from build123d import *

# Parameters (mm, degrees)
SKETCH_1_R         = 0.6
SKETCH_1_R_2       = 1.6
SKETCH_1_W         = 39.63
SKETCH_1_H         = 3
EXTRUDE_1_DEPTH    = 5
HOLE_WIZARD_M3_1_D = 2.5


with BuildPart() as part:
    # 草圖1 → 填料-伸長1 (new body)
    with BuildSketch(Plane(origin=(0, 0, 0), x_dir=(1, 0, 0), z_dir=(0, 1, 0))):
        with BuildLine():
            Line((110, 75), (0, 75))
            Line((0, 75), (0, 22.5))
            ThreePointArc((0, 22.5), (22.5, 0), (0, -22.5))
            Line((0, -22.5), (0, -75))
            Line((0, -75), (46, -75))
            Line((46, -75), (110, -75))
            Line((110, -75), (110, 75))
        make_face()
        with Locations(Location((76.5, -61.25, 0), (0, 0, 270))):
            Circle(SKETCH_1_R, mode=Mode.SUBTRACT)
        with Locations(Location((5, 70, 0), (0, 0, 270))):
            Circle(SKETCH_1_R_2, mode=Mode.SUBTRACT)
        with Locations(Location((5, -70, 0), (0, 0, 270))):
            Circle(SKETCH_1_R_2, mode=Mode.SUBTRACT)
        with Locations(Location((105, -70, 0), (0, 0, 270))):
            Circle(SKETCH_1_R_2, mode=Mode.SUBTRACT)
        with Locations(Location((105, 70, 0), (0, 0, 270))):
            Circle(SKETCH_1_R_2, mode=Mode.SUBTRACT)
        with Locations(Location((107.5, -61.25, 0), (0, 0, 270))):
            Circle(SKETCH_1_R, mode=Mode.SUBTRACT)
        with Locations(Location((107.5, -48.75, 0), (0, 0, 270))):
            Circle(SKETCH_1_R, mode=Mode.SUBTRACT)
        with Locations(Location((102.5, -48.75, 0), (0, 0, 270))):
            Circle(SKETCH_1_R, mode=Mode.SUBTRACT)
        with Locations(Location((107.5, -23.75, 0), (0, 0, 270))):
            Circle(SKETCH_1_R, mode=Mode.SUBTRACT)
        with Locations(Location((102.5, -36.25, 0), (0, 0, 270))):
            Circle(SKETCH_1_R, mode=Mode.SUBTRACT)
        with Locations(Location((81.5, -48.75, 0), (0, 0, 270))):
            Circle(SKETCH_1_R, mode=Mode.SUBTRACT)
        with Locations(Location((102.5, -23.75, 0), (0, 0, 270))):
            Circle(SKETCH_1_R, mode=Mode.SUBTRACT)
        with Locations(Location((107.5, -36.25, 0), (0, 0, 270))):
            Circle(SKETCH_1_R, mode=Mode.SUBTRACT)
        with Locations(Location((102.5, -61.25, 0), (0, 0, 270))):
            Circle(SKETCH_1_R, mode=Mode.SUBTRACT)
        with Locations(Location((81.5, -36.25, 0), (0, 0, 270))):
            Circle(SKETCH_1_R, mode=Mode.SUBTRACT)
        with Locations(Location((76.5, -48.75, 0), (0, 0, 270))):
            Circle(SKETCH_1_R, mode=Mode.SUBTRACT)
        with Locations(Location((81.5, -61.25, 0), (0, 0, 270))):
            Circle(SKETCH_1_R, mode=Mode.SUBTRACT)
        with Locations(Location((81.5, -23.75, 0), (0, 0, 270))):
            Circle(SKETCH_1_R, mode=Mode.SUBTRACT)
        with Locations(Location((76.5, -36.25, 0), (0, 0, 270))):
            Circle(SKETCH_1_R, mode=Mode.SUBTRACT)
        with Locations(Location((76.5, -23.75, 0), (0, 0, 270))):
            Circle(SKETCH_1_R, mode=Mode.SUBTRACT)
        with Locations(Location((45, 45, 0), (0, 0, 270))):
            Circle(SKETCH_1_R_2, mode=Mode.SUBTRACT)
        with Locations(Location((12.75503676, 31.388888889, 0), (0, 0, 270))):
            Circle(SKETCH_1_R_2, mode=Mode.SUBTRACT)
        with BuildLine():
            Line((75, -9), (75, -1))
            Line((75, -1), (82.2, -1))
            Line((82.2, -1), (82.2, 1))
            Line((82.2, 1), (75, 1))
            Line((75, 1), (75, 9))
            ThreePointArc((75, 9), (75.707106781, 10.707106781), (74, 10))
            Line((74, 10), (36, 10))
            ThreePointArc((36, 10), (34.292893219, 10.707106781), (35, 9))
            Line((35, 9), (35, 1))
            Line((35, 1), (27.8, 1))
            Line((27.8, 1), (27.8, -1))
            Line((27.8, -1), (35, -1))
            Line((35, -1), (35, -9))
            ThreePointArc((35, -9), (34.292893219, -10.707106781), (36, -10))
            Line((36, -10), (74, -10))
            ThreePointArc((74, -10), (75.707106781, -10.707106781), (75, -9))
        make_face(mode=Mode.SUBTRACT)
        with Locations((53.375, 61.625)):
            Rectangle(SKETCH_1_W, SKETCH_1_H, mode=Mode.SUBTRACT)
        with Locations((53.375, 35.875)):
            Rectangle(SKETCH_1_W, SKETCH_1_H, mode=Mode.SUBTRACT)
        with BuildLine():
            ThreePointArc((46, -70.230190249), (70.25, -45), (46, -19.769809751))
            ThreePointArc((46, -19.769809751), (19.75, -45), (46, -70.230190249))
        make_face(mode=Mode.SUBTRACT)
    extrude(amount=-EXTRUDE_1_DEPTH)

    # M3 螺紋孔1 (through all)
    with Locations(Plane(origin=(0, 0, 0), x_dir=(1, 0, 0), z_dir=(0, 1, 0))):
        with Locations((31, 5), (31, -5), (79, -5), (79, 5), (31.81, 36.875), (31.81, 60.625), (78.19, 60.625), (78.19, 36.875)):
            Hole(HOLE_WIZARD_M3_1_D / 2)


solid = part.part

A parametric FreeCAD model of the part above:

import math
import FreeCAD as App
import Part
import Sketcher
from FreeCAD import Vector

doc = App.newDocument("Part")
params = doc.addObject("Spreadsheet::Sheet", "Params")
for row, (alias, value) in enumerate([
    ("sketch1_radius", "1 mm"),
    ("sketch1_diameter", "3.2 mm"),
    ("sketch1_diameter2", "1.2 mm"),
    ("sketch1_radius2", "22.5 mm"),
    ("sketch1_width", "110 mm"),
    ("pad1_length", "5 mm"),
    ("sketch2_diameter", "2.5 mm"),
    ("hole_diameter", "2.5 mm"),
], start=1):
    params.set(f"A{row}", alias)
    params.set(f"B{row}", "=" + value)
    params.setAlias(f"B{row}", alias)

body = doc.addObject("PartDesign::Body", "Body")

# Sketch on XZ plane
sketch1 = body.newObject("Sketcher::SketchObject", "Sketch")
sketch1.AttachmentSupport = (doc.getObject("XZ_Plane"), [""])
sketch1.MapMode = "FlatFace"
sketch1.addGeometry(Part.LineSegment(Vector(110, -75, 0), Vector(0, -75, 0)), False)
sketch1.addGeometry(Part.LineSegment(Vector(0, -75, 0), Vector(0, -22.5, 0)), False)
sketch1.addGeometry(Part.ArcOfCircle(Part.Circle(Vector(0, 0, 0), Vector(0, 0, 1), 22.5), math.radians(-90), math.radians(90)), False)
sketch1.addGeometry(Part.LineSegment(Vector(0, 22.5, 0), Vector(0, 75, 0)), False)
sketch1.addGeometry(Part.LineSegment(Vector(0, 75, 0), Vector(110, 75, 0)), False)
sketch1.addGeometry(Part.LineSegment(Vector(110, 75, 0), Vector(110, -75, 0)), False)
sketch1.addGeometry(Part.Circle(Vector(5, 70, 0), Vector(0, 0, 1), 1.6), False)
sketch1.addGeometry(Part.ArcOfCircle(Part.Circle(Vector(45, 45, 0), Vector(0, 0, 1), 25.2), math.radians(-88), math.radians(88)), False)
sketch1.addGeometry(Part.ArcOfCircle(Part.Circle(Vector(45, 45, 0), Vector(0, 0, 1), 25.2), math.radians(88), math.radians(272)), False)
sketch1.addGeometry(Part.Circle(Vector(76.5, 61.2, 0), Vector(0, 0, 1), 0.6), False)
sketch1.addGeometry(Part.Circle(Vector(81.5, 61.2, 0), Vector(0, 0, 1), 0.6), False)
sketch1.addGeometry(Part.Circle(Vector(76.5, 48.8, 0), Vector(0, 0, 1), 0.6), False)
sketch1.addGeometry(Part.Circle(Vector(81.5, 48.8, 0), Vector(0, 0, 1), 0.6), False)
sketch1.addGeometry(Part.Circle(Vector(76.5, 36.2, 0), Vector(0, 0, 1), 0.6), False)
sketch1.addGeometry(Part.Circle(Vector(81.5, 36.2, 0), Vector(0, 0, 1), 0.6), False)
sketch1.addGeometry(Part.Circle(Vector(105, 70, 0), Vector(0, 0, 1), 1.6), False)
sketch1.addGeometry(Part.Circle(Vector(102.5, 61.2, 0), Vector(0, 0, 1), 0.6), False)
sketch1.addGeometry(Part.Circle(Vector(107.5, 61.2, 0), Vector(0, 0, 1), 0.6), False)
sketch1.addGeometry(Part.Circle(Vector(102.5, 48.8, 0), Vector(0, 0, 1), 0.6), False)
sketch1.addGeometry(Part.Circle(Vector(107.5, 48.8, 0), Vector(0, 0, 1), 0.6), False)
sketch1.addGeometry(Part.Circle(Vector(102.5, 36.2, 0), Vector(0, 0, 1), 0.6), False)
sketch1.addGeometry(Part.Circle(Vector(107.5, 36.2, 0), Vector(0, 0, 1), 0.6), False)
sketch1.addGeometry(Part.Circle(Vector(76.5, 23.8, 0), Vector(0, 0, 1), 0.6), False)
sketch1.addGeometry(Part.Circle(Vector(81.5, 23.8, 0), Vector(0, 0, 1), 0.6), False)
sketch1.addGeometry(Part.Circle(Vector(102.5, 23.8, 0), Vector(0, 0, 1), 0.6), False)
sketch1.addGeometry(Part.Circle(Vector(107.5, 23.8, 0), Vector(0, 0, 1), 0.6), False)
sketch1.addGeometry(Part.Circle(Vector(12.8, -31.4, 0), Vector(0, 0, 1), 1.6), False)
sketch1.addGeometry(Part.LineSegment(Vector(75, 1, 0), Vector(75, 9, 0)), False)
sketch1.addGeometry(Part.ArcOfCircle(Part.Circle(Vector(75, 10, 0), Vector(0, 0, 1), 1), math.radians(-90), math.radians(180)), False)
sketch1.addGeometry(Part.LineSegment(Vector(74, 10, 0), Vector(36, 10, 0)), False)
sketch1.addGeometry(Part.ArcOfCircle(Part.Circle(Vector(35, 10, 0), Vector(0, 0, 1), 1), math.radians(0), math.radians(270)), False)
sketch1.addGeometry(Part.LineSegment(Vector(35, 9, 0), Vector(35, 1, 0)), False)
sketch1.addGeometry(Part.LineSegment(Vector(35, 1, 0), Vector(27.8, 1, 0)), False)
sketch1.addGeometry(Part.LineSegment(Vector(27.8, 1, 0), Vector(27.8, -1, 0)), False)
sketch1.addGeometry(Part.LineSegment(Vector(27.8, -1, 0), Vector(35, -1, 0)), False)
sketch1.addGeometry(Part.LineSegment(Vector(35, -1, 0), Vector(35, -9, 0)), False)
sketch1.addGeometry(Part.ArcOfCircle(Part.Circle(Vector(35, -10, 0), Vector(0, 0, 1), 1), math.radians(90), math.radians(360)), False)
sketch1.addGeometry(Part.LineSegment(Vector(36, -10, 0), Vector(74, -10, 0)), False)
sketch1.addGeometry(Part.ArcOfCircle(Part.Circle(Vector(75, -10, 0), Vector(0, 0, 1), 1), math.radians(180), math.radians(450)), False)
sketch1.addGeometry(Part.LineSegment(Vector(75, -9, 0), Vector(75, -1, 0)), False)
sketch1.addGeometry(Part.LineSegment(Vector(75, -1, 0), Vector(82.2, -1, 0)), False)
sketch1.addGeometry(Part.LineSegment(Vector(82.2, -1, 0), Vector(82.2, 1, 0)), False)
sketch1.addGeometry(Part.LineSegment(Vector(82.2, 1, 0), Vector(75, 1, 0)), False)
sketch1.addGeometry(Part.Circle(Vector(5, -70, 0), Vector(0, 0, 1), 1.6), False)
sketch1.addGeometry(Part.LineSegment(Vector(73.2, -34.4, 0), Vector(33.6, -34.4, 0)), False)
sketch1.addGeometry(Part.LineSegment(Vector(33.6, -34.4, 0), Vector(33.6, -37.4, 0)), False)
sketch1.addGeometry(Part.LineSegment(Vector(33.6, -37.4, 0), Vector(73.2, -37.4, 0)), False)
sketch1.addGeometry(Part.LineSegment(Vector(73.2, -37.4, 0), Vector(73.2, -34.4, 0)), False)
sketch1.addGeometry(Part.Circle(Vector(45, -45, 0), Vector(0, 0, 1), 1.6), False)
sketch1.addGeometry(Part.LineSegment(Vector(73.2, -60.1, 0), Vector(33.6, -60.1, 0)), False)
sketch1.addGeometry(Part.LineSegment(Vector(33.6, -60.1, 0), Vector(33.6, -63.1, 0)), False)
sketch1.addGeometry(Part.LineSegment(Vector(33.6, -63.1, 0), Vector(73.2, -63.1, 0)), False)
sketch1.addGeometry(Part.LineSegment(Vector(73.2, -63.1, 0), Vector(73.2, -60.1, 0)), False)
sketch1.addGeometry(Part.Circle(Vector(105, -70, 0), Vector(0, 0, 1), 1.6), False)
sketch1.addConstraint(Sketcher.Constraint("Coincident", 0, 2, 1, 1))
sketch1.addConstraint(Sketcher.Constraint("Coincident", 1, 2, 2, 1))
sketch1.addConstraint(Sketcher.Constraint("Coincident", 2, 2, 3, 1))
sketch1.addConstraint(Sketcher.Constraint("Coincident", 3, 2, 4, 1))
sketch1.addConstraint(Sketcher.Constraint("Coincident", 4, 2, 5, 1))
sketch1.addConstraint(Sketcher.Constraint("Coincident", 5, 2, 0, 1))
sketch1.addConstraint(Sketcher.Constraint("Tangent", 7, 1, 8, 2))
sketch1.addConstraint(Sketcher.Constraint("Coincident", 8, 1, 7, 2))
sketch1.addConstraint(Sketcher.Constraint("Coincident", 27, 2, 28, 1))
sketch1.addConstraint(Sketcher.Constraint("Coincident", 28, 2, 29, 1))
sketch1.addConstraint(Sketcher.Constraint("Coincident", 29, 2, 30, 1))
sketch1.addConstraint(Sketcher.Constraint("Coincident", 30, 2, 31, 1))
sketch1.addConstraint(Sketcher.Constraint("Coincident", 31, 2, 32, 1))
sketch1.addConstraint(Sketcher.Constraint("Coincident", 32, 2, 33, 1))
sketch1.addConstraint(Sketcher.Constraint("Coincident", 33, 2, 34, 1))
sketch1.addConstraint(Sketcher.Constraint("Coincident", 34, 2, 35, 1))
sketch1.addConstraint(Sketcher.Constraint("Coincident", 35, 2, 36, 1))
sketch1.addConstraint(Sketcher.Constraint("Coincident", 36, 2, 37, 1))
sketch1.addConstraint(Sketcher.Constraint("Coincident", 37, 2, 38, 1))
sketch1.addConstraint(Sketcher.Constraint("Coincident", 38, 2, 39, 1))
sketch1.addConstraint(Sketcher.Constraint("Coincident", 39, 2, 40, 1))
sketch1.addConstraint(Sketcher.Constraint("Coincident", 40, 2, 41, 1))
sketch1.addConstraint(Sketcher.Constraint("Coincident", 41, 2, 42, 1))
sketch1.addConstraint(Sketcher.Constraint("Coincident", 42, 2, 27, 1))
sketch1.addConstraint(Sketcher.Constraint("Coincident", 44, 2, 45, 1))
sketch1.addConstraint(Sketcher.Constraint("Coincident", 45, 2, 46, 1))
sketch1.addConstraint(Sketcher.Constraint("Coincident", 46, 2, 47, 1))
sketch1.addConstraint(Sketcher.Constraint("Coincident", 47, 2, 44, 1))
sketch1.addConstraint(Sketcher.Constraint("Coincident", 49, 2, 50, 1))
sketch1.addConstraint(Sketcher.Constraint("Coincident", 50, 2, 51, 1))
sketch1.addConstraint(Sketcher.Constraint("Coincident", 51, 2, 52, 1))
sketch1.addConstraint(Sketcher.Constraint("Coincident", 52, 2, 49, 1))
sketch1.addConstraint(Sketcher.Constraint("Horizontal", 0))
sketch1.addConstraint(Sketcher.Constraint("Vertical", 1))
sketch1.addConstraint(Sketcher.Constraint("Vertical", 3))
sketch1.addConstraint(Sketcher.Constraint("Horizontal", 4))
sketch1.addConstraint(Sketcher.Constraint("Vertical", 5))
sketch1.addConstraint(Sketcher.Constraint("Vertical", 27))
sketch1.addConstraint(Sketcher.Constraint("Horizontal", 29))
sketch1.addConstraint(Sketcher.Constraint("Vertical", 31))
sketch1.addConstraint(Sketcher.Constraint("Horizontal", 32))
sketch1.addConstraint(Sketcher.Constraint("Vertical", 33))
sketch1.addConstraint(Sketcher.Constraint("Horizontal", 34))
sketch1.addConstraint(Sketcher.Constraint("Vertical", 35))
sketch1.addConstraint(Sketcher.Constraint("Horizontal", 37))
sketch1.addConstraint(Sketcher.Constraint("Vertical", 39))
sketch1.addConstraint(Sketcher.Constraint("Horizontal", 40))
sketch1.addConstraint(Sketcher.Constraint("Vertical", 41))
sketch1.addConstraint(Sketcher.Constraint("Horizontal", 42))
sketch1.addConstraint(Sketcher.Constraint("Horizontal", 44))
sketch1.addConstraint(Sketcher.Constraint("Vertical", 45))
sketch1.addConstraint(Sketcher.Constraint("Horizontal", 46))
sketch1.addConstraint(Sketcher.Constraint("Vertical", 47))
sketch1.addConstraint(Sketcher.Constraint("Horizontal", 49))
sketch1.addConstraint(Sketcher.Constraint("Vertical", 50))
sketch1.addConstraint(Sketcher.Constraint("Horizontal", 51))
sketch1.addConstraint(Sketcher.Constraint("Vertical", 52))
sketch1.addConstraint(Sketcher.Constraint("Coincident", 2, 3, -1, 1))
sketch1.addConstraint(Sketcher.Constraint("Equal", 9, 10))
sketch1.addConstraint(Sketcher.Constraint("Equal", 10, 11))
sketch1.addConstraint(Sketcher.Constraint("Equal", 11, 12))
sketch1.addConstraint(Sketcher.Constraint("Equal", 12, 13))
sketch1.addConstraint(Sketcher.Constraint("Equal", 13, 14))
sketch1.addConstraint(Sketcher.Constraint("Equal", 6, 15))
sketch1.addConstraint(Sketcher.Constraint("Equal", 14, 16))
sketch1.addConstraint(Sketcher.Constraint("Equal", 16, 17))
sketch1.addConstraint(Sketcher.Constraint("Equal", 17, 18))
sketch1.addConstraint(Sketcher.Constraint("Equal", 18, 19))
sketch1.addConstraint(Sketcher.Constraint("Equal", 19, 20))
sketch1.addConstraint(Sketcher.Constraint("Equal", 20, 21))
sketch1.addConstraint(Sketcher.Constraint("Equal", 21, 22))
sketch1.addConstraint(Sketcher.Constraint("Equal", 22, 23))
sketch1.addConstraint(Sketcher.Constraint("Equal", 23, 24))
sketch1.addConstraint(Sketcher.Constraint("Equal", 24, 25))
sketch1.addConstraint(Sketcher.Constraint("Equal", 15, 26))
sketch1.addConstraint(Sketcher.Constraint("Equal", 28, 30))
sketch1.addConstraint(Sketcher.Constraint("Equal", 30, 36))
sketch1.addConstraint(Sketcher.Constraint("Equal", 36, 38))
sketch1.addConstraint(Sketcher.Constraint("Equal", 26, 43))
sketch1.addConstraint(Sketcher.Constraint("Equal", 43, 48))
sketch1.addConstraint(Sketcher.Constraint("Equal", 48, 53))
sketch1.addConstraint(Sketcher.Constraint("Symmetric", 0, 2, 3, 2, -1, 1))
sketch1.addConstraint(Sketcher.Constraint("Symmetric", 30, 3, 36, 3, -1))
sketch1.addConstraint(Sketcher.Constraint("Symmetric", 28, 3, 38, 3, -1))
sketch1.addConstraint(Sketcher.Constraint("Symmetric", 6, 3, 43, 3, -1))
sketch1.addConstraint(Sketcher.Constraint("Symmetric", 7, 3, 48, 3, -1))
sketch1.addConstraint(Sketcher.Constraint("Symmetric", 15, 3, 53, 3, -1))
sketch1.addConstraint(Sketcher.Constraint("Symmetric", 31, 2, 34, 2, -1))
sketch1.addConstraint(Sketcher.Constraint("Symmetric", 39, 2, 42, 2, -1))
sketch1.addConstraint(Sketcher.Constraint("PointOnObject", 0, 2, -2))
sketch1.addConstraint(Sketcher.Constraint("Horizontal", 9, 3, 10, 3))
sketch1.addConstraint(Sketcher.Constraint("Horizontal", 11, 3, 12, 3))
sketch1.addConstraint(Sketcher.Constraint("Horizontal", 13, 3, 14, 3))
sketch1.addConstraint(Sketcher.Constraint("Horizontal", 6, 3, 15, 3))
sketch1.addConstraint(Sketcher.Constraint("Horizontal", 10, 3, 16, 3))
sketch1.addConstraint(Sketcher.Constraint("Horizontal", 16, 3, 17, 3))
sketch1.addConstraint(Sketcher.Constraint("Horizontal", 12, 3, 18, 3))
sketch1.addConstraint(Sketcher.Constraint("Horizontal", 18, 3, 19, 3))
sketch1.addConstraint(Sketcher.Constraint("Horizontal", 14, 3, 20, 3))
sketch1.addConstraint(Sketcher.Constraint("Horizontal", 20, 3, 21, 3))
sketch1.addConstraint(Sketcher.Constraint("Horizontal", 22, 3, 23, 3))
sketch1.addConstraint(Sketcher.Constraint("Horizontal", 23, 3, 24, 3))
sketch1.addConstraint(Sketcher.Constraint("Horizontal", 24, 3, 25, 3))
sketch1.addConstraint(Sketcher.Constraint("Horizontal", 28, 3, 30, 3))
sketch1.addConstraint(Sketcher.Constraint("Horizontal", 30, 3, 28, 2))
sketch1.addConstraint(Sketcher.Constraint("Horizontal", 38, 3, 36, 2))
sketch1.addConstraint(Sketcher.Constraint("Horizontal", 34, 2, 39, 2))
sketch1.addConstraint(Sketcher.Constraint("Vertical", 9, 3, 11, 3))
sketch1.addConstraint(Sketcher.Constraint("Vertical", 10, 3, 12, 3))
sketch1.addConstraint(Sketcher.Constraint("Vertical", 11, 3, 13, 3))
sketch1.addConstraint(Sketcher.Constraint("Vertical", 12, 3, 14, 3))
sketch1.addConstraint(Sketcher.Constraint("Vertical", 16, 3, 18, 3))
sketch1.addConstraint(Sketcher.Constraint("Vertical", 17, 3, 19, 3))
sketch1.addConstraint(Sketcher.Constraint("Vertical", 18, 3, 20, 3))
sketch1.addConstraint(Sketcher.Constraint("Vertical", 19, 3, 21, 3))
sketch1.addConstraint(Sketcher.Constraint("Vertical", 13, 3, 22, 3))
sketch1.addConstraint(Sketcher.Constraint("Vertical", 14, 3, 23, 3))
sketch1.addConstraint(Sketcher.Constraint("Vertical", 20, 3, 24, 3))
sketch1.addConstraint(Sketcher.Constraint("Vertical", 21, 3, 25, 3))
sketch1.addConstraint(Sketcher.Constraint("Vertical", 7, 1, 8, 1))
sketch1.addConstraint(Sketcher.Constraint("Vertical", 38, 3, 27, 2))
sketch1.addConstraint(Sketcher.Constraint("Vertical", 36, 3, 30, 2))
sketch1.addConstraint(Sketcher.Constraint("Vertical", 45, 2, 49, 2))
sketch1.addConstraint(Sketcher.Constraint("Vertical", 47, 2, 51, 2))
sketch1.addConstraint(Sketcher.Constraint("Equal", 34, 40))
sketch1.addConstraint(Sketcher.Constraint("Equal", 47, 50))
sketch1.addConstraint(Sketcher.Constraint("Radius", 28, 1.0))
sketch1.addConstraint(Sketcher.Constraint("Diameter", 6, 3.2))
sketch1.addConstraint(Sketcher.Constraint("Diameter", 9, 1.2))
sketch1.addConstraint(Sketcher.Constraint("Radius", 2, 22.5))
sketch1.addConstraint(Sketcher.Constraint("DistanceX", 0, 2, 0, 1, 110.0))
sketch1.addConstraint(Sketcher.Constraint("DistanceX", 29, 2, 29, 1, 38.0))
sketch1.addConstraint(Sketcher.Constraint("DistanceY", 5, 2, 5, 1, 150.0))
sketch1.addConstraint(Sketcher.Constraint("DistanceY", 27, 1, 27, 2, 8.0))
sketch1.addConstraint(Sketcher.Constraint("DistanceY", 33, 2, 33, 1, 2.0))
sketch1.addConstraint(Sketcher.Constraint("DistanceY", 45, 2, 45, 1, 3.0))
sketch1.addConstraint(Sketcher.Constraint("Radius", 7, 25.25))
sketch1.addConstraint(Sketcher.Constraint("DistanceX", 32, 2, 32, 1, 7.2))
sketch1.addConstraint(Sketcher.Constraint("DistanceX", -1, 1, 6, 3, 5.0))
sketch1.addConstraint(Sketcher.Constraint("DistanceY", -1, 1, 6, 3, 70.0))
sketch1.addConstraint(Sketcher.Constraint("DistanceX", -1, 1, 7, 3, 45.0))
sketch1.addConstraint(Sketcher.Constraint("DistanceY", -1, 1, 7, 3, 45.0))
sketch1.addConstraint(Sketcher.Constraint("DistanceX", -1, 1, 15, 3, 105.0))
sketch1.addConstraint(Sketcher.Constraint("DistanceX", -1, 1, 28, 3, 75.0))
sketch1.addConstraint(Sketcher.Constraint("DistanceX", -1, 1, 7, 1, 46.0))
sketch1.addConstraint(Sketcher.Constraint("DistanceX", 44, 2, 44, 1, 39.63))
sketch1.addConstraint(Sketcher.Constraint("DistanceX", -1, 1, 9, 3, 76.5))
sketch1.addConstraint(Sketcher.Constraint("DistanceX", -1, 1, 10, 3, 81.5))
sketch1.addConstraint(Sketcher.Constraint("DistanceX", -1, 1, 16, 3, 102.5))
sketch1.addConstraint(Sketcher.Constraint("DistanceX", -1, 1, 17, 3, 107.5))
sketch1.addConstraint(Sketcher.Constraint("DistanceY", -1, 1, 9, 3, 61.25))
sketch1.addConstraint(Sketcher.Constraint("DistanceY", -1, 1, 11, 3, 48.75))
sketch1.addConstraint(Sketcher.Constraint("DistanceY", -1, 1, 13, 3, 36.25))
sketch1.addConstraint(Sketcher.Constraint("DistanceY", -1, 1, 22, 3, 23.75))
sketch1.addConstraint(Sketcher.Constraint("DistanceX", -1, 1, 44, 2, 33.56))
sketch1.addConstraint(Sketcher.Constraint("DistanceY", 44, 2, -1, 1, 34.375))
sketch1.addConstraint(Sketcher.Constraint("DistanceY", 49, 2, -1, 1, 60.125))
sketch1.addConstraint(Sketcher.Constraint("DistanceY", 26, 3, -1, 1, 31.388889))
sketch1.addConstraint(Sketcher.Constraint("DistanceX", -1, 1, 26, 3, 12.755037))
sketch1.setExpression("Constraints[126]", "Params.sketch1_radius")
sketch1.setExpression("Constraints[127]", "Params.sketch1_diameter")
sketch1.setExpression("Constraints[128]", "Params.sketch1_diameter2")
sketch1.setExpression("Constraints[129]", "Params.sketch1_radius2")
sketch1.setExpression("Constraints[130]", "Params.sketch1_width")
pad1 = body.newObject("PartDesign::Pad", "Pad")
pad1.Profile = sketch1
pad1.setExpression("Length", "Params.pad1_length")

# Sketch on XZ plane
sketch2 = body.newObject("Sketcher::SketchObject", "Sketch001")
sketch2.AttachmentSupport = (doc.getObject("XZ_Plane"), [""])
sketch2.MapMode = "FlatFace"
sketch2.addGeometry(Part.Circle(Vector(31, -5, 0), Vector(0, 0, 1), 1.2), False)
sketch2.addGeometry(Part.Circle(Vector(31, 5, 0), Vector(0, 0, 1), 1.2), False)
sketch2.addGeometry(Part.Circle(Vector(79, 5, 0), Vector(0, 0, 1), 1.2), False)
sketch2.addGeometry(Part.Circle(Vector(79, -5, 0), Vector(0, 0, 1), 1.2), False)
sketch2.addGeometry(Part.Circle(Vector(31.8, -36.9, 0), Vector(0, 0, 1), 1.2), False)
sketch2.addGeometry(Part.Circle(Vector(31.8, -60.6, 0), Vector(0, 0, 1), 1.2), False)
sketch2.addGeometry(Part.Circle(Vector(78.2, -60.6, 0), Vector(0, 0, 1), 1.2), False)
sketch2.addGeometry(Part.Circle(Vector(78.2, -36.9, 0), Vector(0, 0, 1), 1.2), False)
sketch2.addConstraint(Sketcher.Constraint("Equal", 0, 1))
sketch2.addConstraint(Sketcher.Constraint("Equal", 1, 2))
sketch2.addConstraint(Sketcher.Constraint("Equal", 2, 3))
sketch2.addConstraint(Sketcher.Constraint("Equal", 3, 4))
sketch2.addConstraint(Sketcher.Constraint("Equal", 4, 5))
sketch2.addConstraint(Sketcher.Constraint("Equal", 5, 6))
sketch2.addConstraint(Sketcher.Constraint("Equal", 6, 7))
sketch2.addConstraint(Sketcher.Constraint("Symmetric", 0, 3, 1, 3, -1))
sketch2.addConstraint(Sketcher.Constraint("Symmetric", 2, 3, 3, 3, -1))
sketch2.addConstraint(Sketcher.Constraint("Horizontal", 1, 3, 2, 3))
sketch2.addConstraint(Sketcher.Constraint("Horizontal", 5, 3, 6, 3))
sketch2.addConstraint(Sketcher.Constraint("Horizontal", 4, 3, 7, 3))
sketch2.addConstraint(Sketcher.Constraint("Vertical", 4, 3, 5, 3))
sketch2.addConstraint(Sketcher.Constraint("Vertical", 6, 3, 7, 3))
sketch2.addConstraint(Sketcher.Constraint("Diameter", 0, 2.5))
sketch2.addConstraint(Sketcher.Constraint("DistanceX", -1, 1, 0, 3, 31.0))
sketch2.addConstraint(Sketcher.Constraint("DistanceY", 0, 3, -1, 1, 5.0))
sketch2.addConstraint(Sketcher.Constraint("DistanceX", -1, 1, 2, 3, 79.0))
sketch2.addConstraint(Sketcher.Constraint("DistanceX", -1, 1, 4, 3, 31.81))
sketch2.addConstraint(Sketcher.Constraint("DistanceX", -1, 1, 6, 3, 78.19))
sketch2.addConstraint(Sketcher.Constraint("DistanceY", 5, 3, 4, 3, 23.75))
sketch2.addConstraint(Sketcher.Constraint("DistanceY", 4, 3, -1, 1, 36.875))
sketch2.setExpression("Constraints[14]", "Params.sketch2_diameter")
doc.recompute()
hole = body.newObject("PartDesign::Hole", "Hole")
hole.Profile = sketch2
hole.ThreadType = "None"
hole.setExpression("Diameter", "Params.hole_diameter")
hole.DepthType = "ThroughAll"
hole.Reversed = True

doc.recompute()
